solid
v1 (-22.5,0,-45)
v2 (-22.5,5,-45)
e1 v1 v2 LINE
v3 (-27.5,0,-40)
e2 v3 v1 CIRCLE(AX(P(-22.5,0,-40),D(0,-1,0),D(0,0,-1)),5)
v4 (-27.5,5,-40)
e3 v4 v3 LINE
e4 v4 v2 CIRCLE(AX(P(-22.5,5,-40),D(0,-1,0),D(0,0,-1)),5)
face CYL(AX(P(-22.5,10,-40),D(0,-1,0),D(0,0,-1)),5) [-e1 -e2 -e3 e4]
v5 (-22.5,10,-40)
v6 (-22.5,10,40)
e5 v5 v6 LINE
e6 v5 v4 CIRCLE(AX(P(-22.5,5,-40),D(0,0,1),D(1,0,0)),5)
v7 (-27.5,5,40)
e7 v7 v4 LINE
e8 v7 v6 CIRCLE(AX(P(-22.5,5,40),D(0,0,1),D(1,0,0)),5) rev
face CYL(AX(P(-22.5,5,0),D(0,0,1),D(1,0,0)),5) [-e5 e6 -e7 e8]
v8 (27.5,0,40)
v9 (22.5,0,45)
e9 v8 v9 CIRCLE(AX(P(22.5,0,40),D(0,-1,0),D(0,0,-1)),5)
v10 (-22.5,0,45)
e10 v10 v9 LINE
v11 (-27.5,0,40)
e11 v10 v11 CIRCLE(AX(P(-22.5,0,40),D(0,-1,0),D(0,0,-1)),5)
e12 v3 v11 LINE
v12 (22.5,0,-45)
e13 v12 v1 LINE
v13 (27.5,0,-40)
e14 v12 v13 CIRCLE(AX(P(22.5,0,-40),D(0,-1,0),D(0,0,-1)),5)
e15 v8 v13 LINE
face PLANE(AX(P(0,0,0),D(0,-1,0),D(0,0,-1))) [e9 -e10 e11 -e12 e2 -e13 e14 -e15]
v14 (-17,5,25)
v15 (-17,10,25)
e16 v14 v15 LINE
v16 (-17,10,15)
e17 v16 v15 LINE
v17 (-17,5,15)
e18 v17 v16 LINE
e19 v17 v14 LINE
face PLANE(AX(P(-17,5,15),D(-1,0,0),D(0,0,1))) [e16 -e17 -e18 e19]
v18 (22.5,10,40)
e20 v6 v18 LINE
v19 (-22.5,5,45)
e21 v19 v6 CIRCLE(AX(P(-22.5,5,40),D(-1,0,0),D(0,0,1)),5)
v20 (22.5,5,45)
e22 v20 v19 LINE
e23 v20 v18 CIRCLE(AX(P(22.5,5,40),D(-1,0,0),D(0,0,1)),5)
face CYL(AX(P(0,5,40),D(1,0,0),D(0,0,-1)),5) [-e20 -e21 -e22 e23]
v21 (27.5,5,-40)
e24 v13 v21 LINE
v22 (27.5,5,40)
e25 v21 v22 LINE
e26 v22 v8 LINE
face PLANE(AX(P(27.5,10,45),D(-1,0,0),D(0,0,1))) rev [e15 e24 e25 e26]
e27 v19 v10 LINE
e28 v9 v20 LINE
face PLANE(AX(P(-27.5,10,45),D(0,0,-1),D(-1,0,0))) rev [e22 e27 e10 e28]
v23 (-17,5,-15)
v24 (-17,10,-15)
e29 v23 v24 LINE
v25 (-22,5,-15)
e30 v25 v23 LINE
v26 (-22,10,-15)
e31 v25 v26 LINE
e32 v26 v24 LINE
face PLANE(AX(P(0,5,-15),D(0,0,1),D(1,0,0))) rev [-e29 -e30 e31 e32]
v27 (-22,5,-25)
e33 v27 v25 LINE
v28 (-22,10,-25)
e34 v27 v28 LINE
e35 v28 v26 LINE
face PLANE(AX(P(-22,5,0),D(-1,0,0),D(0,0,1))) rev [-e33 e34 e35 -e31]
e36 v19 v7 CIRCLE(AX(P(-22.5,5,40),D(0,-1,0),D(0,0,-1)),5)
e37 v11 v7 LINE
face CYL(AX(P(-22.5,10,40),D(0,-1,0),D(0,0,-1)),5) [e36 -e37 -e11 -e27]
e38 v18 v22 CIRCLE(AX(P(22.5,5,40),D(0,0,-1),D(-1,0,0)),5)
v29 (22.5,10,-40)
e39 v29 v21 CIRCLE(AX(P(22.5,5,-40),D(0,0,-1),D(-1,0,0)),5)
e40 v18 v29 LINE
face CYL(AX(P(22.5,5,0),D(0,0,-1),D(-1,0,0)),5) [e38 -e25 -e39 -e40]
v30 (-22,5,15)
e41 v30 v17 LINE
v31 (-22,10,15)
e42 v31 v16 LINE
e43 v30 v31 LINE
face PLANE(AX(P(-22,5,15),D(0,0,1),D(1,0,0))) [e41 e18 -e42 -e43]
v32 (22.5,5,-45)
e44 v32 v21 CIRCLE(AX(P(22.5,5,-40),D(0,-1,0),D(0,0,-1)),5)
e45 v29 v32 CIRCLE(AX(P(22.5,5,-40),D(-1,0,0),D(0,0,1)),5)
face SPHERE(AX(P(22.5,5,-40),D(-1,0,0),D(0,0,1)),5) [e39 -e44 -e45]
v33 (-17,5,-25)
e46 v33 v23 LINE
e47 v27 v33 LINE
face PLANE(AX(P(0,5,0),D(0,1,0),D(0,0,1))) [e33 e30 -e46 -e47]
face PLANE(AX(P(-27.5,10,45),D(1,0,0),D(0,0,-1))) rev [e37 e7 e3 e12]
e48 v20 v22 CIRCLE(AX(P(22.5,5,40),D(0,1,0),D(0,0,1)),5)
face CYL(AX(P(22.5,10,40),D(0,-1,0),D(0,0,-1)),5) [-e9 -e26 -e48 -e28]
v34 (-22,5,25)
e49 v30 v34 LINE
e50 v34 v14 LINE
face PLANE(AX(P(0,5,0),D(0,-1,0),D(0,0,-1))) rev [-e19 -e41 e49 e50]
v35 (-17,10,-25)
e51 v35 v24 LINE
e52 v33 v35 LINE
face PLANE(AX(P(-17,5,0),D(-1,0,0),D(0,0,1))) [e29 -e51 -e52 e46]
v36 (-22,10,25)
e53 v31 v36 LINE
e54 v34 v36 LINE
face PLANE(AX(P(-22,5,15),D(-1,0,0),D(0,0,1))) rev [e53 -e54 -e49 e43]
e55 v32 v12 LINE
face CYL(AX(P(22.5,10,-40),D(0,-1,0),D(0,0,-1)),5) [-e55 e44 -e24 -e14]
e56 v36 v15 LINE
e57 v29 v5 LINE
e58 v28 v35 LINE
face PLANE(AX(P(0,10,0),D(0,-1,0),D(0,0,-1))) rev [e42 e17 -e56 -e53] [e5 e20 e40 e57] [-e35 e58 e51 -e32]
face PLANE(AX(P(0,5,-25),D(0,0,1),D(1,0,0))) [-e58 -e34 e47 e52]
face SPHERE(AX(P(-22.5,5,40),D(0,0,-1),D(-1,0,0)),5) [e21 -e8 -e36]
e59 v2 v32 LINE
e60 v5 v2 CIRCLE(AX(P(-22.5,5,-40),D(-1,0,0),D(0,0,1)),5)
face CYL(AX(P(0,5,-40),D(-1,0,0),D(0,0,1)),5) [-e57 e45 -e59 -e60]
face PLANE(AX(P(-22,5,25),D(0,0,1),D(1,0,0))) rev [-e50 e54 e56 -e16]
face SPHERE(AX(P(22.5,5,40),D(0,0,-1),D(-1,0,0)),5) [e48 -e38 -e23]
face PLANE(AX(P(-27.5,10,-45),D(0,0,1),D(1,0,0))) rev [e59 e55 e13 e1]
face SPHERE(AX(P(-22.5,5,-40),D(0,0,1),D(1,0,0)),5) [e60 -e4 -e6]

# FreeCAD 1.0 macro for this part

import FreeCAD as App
import Part
import Sketcher
from FreeCAD import Vector
Q = App.Units.Quantity


def edges_at(feature, points):
    """Names of the edges that pass closest to the given points."""
    edges = feature.Shape.Edges
    near = lambda p: min(range(len(edges)), key=lambda i: edges[i].distToShape(Part.Vertex(*p))[0])
    return sorted({f"Edge{near(p) + 1}" for p in points})

doc = App.newDocument("Part")
body = doc.addObject("PartDesign::Body", "Body")

# Sketch on XZ plane
sketch1 = body.newObject("Sketcher::SketchObject", "Sketch")
sketch1.AttachmentSupport = (doc.getObject("XZ_Plane"), [""])
sketch1.MapMode = "FlatFace"
sketch1.addGeometry([
    Part.LineSegment(Vector(-27.5, -45, 0), Vector(-27.5, 45, 0)),
    Part.LineSegment(Vector(-27.5, 45, 0), Vector(27.5, 45, 0)),
    Part.LineSegment(Vector(27.5, 45, 0), Vector(27.5, -45, 0)),
    Part.LineSegment(Vector(27.5, -45, 0), Vector(-27.5, -45, 0)),
], False)
sketch1.addConstraint([
    Sketcher.Constraint("Coincident", 0, 2, 1, 1),
    Sketcher.Constraint("Coincident", 1, 2, 2, 1),
    Sketcher.Constraint("Coincident", 2, 2, 3, 1),
    Sketcher.Constraint("Coincident", 3, 2, 0, 1),
    Sketcher.Constraint("Vertical", 0),
    Sketcher.Constraint("Horizontal", 1),
    Sketcher.Constraint("Vertical", 2),
    Sketcher.Constraint("Horizontal", 3),
    Sketcher.Constraint("Symmetric", 0, 2, 2, 2, -1, 1),
    Sketcher.Constraint("DistanceX", 1, 1, 1, 2, Q("55 mm")),
    Sketcher.Constraint("DistanceY", 0, 1, 0, 2, Q("90 mm")),
])
pad1 = body.newObject("PartDesign::Pad", "Pad")
pad1.Profile = sketch1
pad1.Length = 10
pad1.Reversed = True
doc.recompute()

fillet = body.newObject("PartDesign::Fillet", "Fillet")
fillet.Base = (pad1, edges_at(pad1, [(-27.5, 10, 0)]))
fillet.Radius = 5
doc.recompute()

fillet2 = body.newObject("PartDesign::Fillet", "Fillet001")
fillet2.Base = (fillet, edges_at(fillet, [(-27.5, 2.5, -45), (-26.036, 8.536, -45), (2.5, 10, -45)]))
fillet2.Radius = 5
doc.recompute()

fillet3 = body.newObject("PartDesign::Fillet", "Fillet002")
fillet3.Base = (fillet2, edges_at(fillet2, [(27.5, 2.5, -45), (27.5, 8.536, -43.536), (27.5, 10, 2.5)]))
fillet3.Radius = 5
doc.recompute()

fillet4 = body.newObject("PartDesign::Fillet", "Fillet003")
fillet4.Base = (fillet3, edges_at(fillet3, [
    (0, 10, 45),
    (-27.5, 2.5, 45),
    (-26.036, 8.536, 45),
    (27.5, 2.5, 45),
    (26.036, 8.536, 45),
]))
fillet4.Radius = 5

# Sketch on XZ plane
sketch2 = body.newObject("Sketcher::SketchObject", "Sketch001")
sketch2.AttachmentSupport = (doc.getObject("XZ_Plane"), [""])
sketch2.MapMode = "FlatFace"
sketch2.AttachmentOffset = App.Placement(Vector(0, 0, -10), App.Rotation())
sketch2.addGeometry([
    Part.LineSegment(Vector(-22, -25, 0), Vector(-22, -15, 0)),  # 0
    Part.LineSegment(Vector(-22, -15, 0), Vector(-17, -15, 0)),  # 1
    Part.LineSegment(Vector(-17, -15, 0), Vector(-17, -25, 0)),  # 2
    Part.LineSegment(Vector(-17, -25, 0), Vector(-22, -25, 0)),  # 3
    Part.LineSegment(Vector(-22, 15, 0), Vector(-22, 25, 0)),  # 4
    Part.LineSegment(Vector(-22, 25, 0), Vector(-17, 25, 0)),  # 5
    Part.LineSegment(Vector(-17, 25, 0), Vector(-17, 15, 0)),  # 6
    Part.LineSegment(Vector(-17, 15, 0), Vector(-22, 15, 0)),  # 7
], False)
sketch2.addConstraint([
    Sketcher.Constraint("Coincident", 0, 2, 1, 1),
    Sketcher.Constraint("Coincident", 1, 2, 2, 1),
    Sketcher.Constraint("Coincident", 2, 2, 3, 1),
    Sketcher.Constraint("Coincident", 3, 2, 0, 1),
    Sketcher.Constraint("Coincident", 4, 2, 5, 1),
    Sketcher.Constraint("Coincident", 5, 2, 6, 1),
    Sketcher.Constraint("Coincident", 6, 2, 7, 1),
    Sketcher.Constraint("Coincident", 7, 2, 4, 1),
    Sketcher.Constraint("Vertical", 0),
    Sketcher.Constraint("Horizontal", 1),
    Sketcher.Constraint("Vertical", 2),
    Sketcher.Constraint("Horizontal", 3),
    Sketcher.Constraint("Vertical", 4),
    Sketcher.Constraint("Horizontal", 5),
    Sketcher.Constraint("Vertical", 6),
    Sketcher.Constraint("Horizontal", 7),
    Sketcher.Constraint("Symmetric", 3, 2, 4, 2, -1),
    Sketcher.Constraint("Symmetric", 1, 2, 6, 2, -1),
    Sketcher.Constraint("DistanceX", 1, 1, 1, 2, Q("5 mm")),
    Sketcher.Constraint("DistanceY", 0, 1, 0, 2, Q("10 mm")),
    Sketcher.Constraint("DistanceX", 0, 2, -1, 1, Q("22 mm")),
    Sketcher.Constraint("DistanceY", 0, 2, -1, 1, Q("15 mm")),
])
pocket1 = body.newObject("PartDesign::Pocket", "Pocket")
pocket1.Profile = sketch2
pocket1.Length = 5
pocket1.Reversed = True

doc.recompute()
